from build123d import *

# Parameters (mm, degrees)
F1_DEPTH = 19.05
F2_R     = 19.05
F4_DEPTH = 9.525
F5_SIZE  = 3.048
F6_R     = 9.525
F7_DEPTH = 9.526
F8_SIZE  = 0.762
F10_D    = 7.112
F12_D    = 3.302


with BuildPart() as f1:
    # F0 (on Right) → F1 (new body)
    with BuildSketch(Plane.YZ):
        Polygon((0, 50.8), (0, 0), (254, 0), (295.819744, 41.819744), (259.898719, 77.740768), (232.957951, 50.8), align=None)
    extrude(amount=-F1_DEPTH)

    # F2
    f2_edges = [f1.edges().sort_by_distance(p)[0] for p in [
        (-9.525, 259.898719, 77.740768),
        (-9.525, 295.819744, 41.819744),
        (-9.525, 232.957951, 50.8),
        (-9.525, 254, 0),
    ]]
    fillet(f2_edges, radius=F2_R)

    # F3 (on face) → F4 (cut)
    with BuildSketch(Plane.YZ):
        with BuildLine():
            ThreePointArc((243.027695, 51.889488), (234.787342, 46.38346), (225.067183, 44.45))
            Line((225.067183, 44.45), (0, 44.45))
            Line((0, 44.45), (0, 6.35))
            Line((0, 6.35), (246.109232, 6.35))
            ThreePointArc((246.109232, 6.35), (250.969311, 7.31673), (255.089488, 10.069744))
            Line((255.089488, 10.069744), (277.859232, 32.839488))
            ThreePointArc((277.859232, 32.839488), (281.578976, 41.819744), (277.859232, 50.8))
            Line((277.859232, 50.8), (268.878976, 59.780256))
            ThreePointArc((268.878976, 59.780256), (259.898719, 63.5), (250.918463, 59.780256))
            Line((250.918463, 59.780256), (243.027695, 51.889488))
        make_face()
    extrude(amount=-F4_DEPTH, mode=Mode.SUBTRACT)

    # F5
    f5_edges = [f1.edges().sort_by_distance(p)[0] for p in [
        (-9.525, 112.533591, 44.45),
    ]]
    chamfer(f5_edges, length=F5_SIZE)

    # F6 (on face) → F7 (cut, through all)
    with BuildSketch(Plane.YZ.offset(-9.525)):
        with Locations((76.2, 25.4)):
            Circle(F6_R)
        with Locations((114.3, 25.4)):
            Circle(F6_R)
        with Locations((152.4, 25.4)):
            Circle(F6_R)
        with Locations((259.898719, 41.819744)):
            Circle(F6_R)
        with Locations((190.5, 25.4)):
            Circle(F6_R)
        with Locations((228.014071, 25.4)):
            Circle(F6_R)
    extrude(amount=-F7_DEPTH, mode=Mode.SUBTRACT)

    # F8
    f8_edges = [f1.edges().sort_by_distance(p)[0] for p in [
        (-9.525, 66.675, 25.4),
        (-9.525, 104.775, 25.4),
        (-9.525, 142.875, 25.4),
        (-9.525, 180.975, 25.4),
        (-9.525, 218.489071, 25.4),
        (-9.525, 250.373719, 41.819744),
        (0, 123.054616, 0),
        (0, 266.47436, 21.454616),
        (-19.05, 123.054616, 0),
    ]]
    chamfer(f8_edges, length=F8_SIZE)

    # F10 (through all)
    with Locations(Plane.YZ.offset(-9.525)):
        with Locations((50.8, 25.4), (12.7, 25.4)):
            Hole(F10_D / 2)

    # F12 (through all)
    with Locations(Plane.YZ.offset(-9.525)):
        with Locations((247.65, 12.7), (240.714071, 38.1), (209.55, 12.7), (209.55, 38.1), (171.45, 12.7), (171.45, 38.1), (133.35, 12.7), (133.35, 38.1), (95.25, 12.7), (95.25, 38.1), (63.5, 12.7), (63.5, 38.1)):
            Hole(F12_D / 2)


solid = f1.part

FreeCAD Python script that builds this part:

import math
import FreeCAD as App
import Part
import Sketcher
Q = App.Units.Quantity


def edges_at(feature, points):
    """Names of the edges that pass closest to the given points."""
    edges = feature.Shape.Edges
    near = lambda p: min(range(len(edges)), key=lambda i: edges[i].distToShape(Part.Vertex(*p))[0])
    return sorted({f"Edge{near(p) + 1}" for p in points})


def add_polygon(sketch, points):
    """Adds a closed chain of lines whose ends are joined by coincident constraints."""
    first, n = sketch.GeometryCount, len(points)
    for a, b in zip(points, points[1:] + points[:1]):
        sketch.addGeometry(Part.LineSegment(App.Vector(*a, 0), App.Vector(*b, 0)), False)
    for i in range(n):
        sketch.addConstraint(Sketcher.Constraint("Coincident", first + i, 2, first + (i + 1) % n, 1))

doc = App.newDocument("Part")
body = doc.addObject("PartDesign::Body", "Body")

# Sketch on YZ plane
sketch1 = body.newObject("Sketcher::SketchObject", "Sketch")
sketch1.AttachmentSupport = (doc.getObject("YZ_Plane"), [""])
sketch1.MapMode = "FlatFace"
add_polygon(sketch1, [(0, 51), (0, 0), (254, 0), (296, 42), (260, 78), (233, 51)])  # lines 0-5
sketch1.addConstraint(Sketcher.Constraint("Vertical", 0))
sketch1.addConstraint(Sketcher.Constraint("Horizontal", 1))
sketch1.addConstraint(Sketcher.Constraint("Horizontal", 5))
sketch1.addConstraint(Sketcher.Constraint("Coincident", 0, 2, -1, 1))
sketch1.addConstraint(Sketcher.Constraint("Perpendicular", 2, 3))
sketch1.addConstraint(Sketcher.Constraint("Perpendicular", 3, 4))
sketch1.addConstraint(Sketcher.Constraint("DistanceX", 1, 1, 1, 2, Q("10 in")))
sketch1.addConstraint(Sketcher.Constraint("DistanceY", 0, 2, 0, 1, Q("2 in")))
sketch1.addConstraint(Sketcher.Constraint("Distance", 3, Q("2 in")))
sketch1.addConstraint(Sketcher.Constraint("Angle", 2, Q("45 deg")))
sketch1.addConstraint(Sketcher.Constraint("Distance", 4, Q("1.5 in")))
pad1 = body.newObject("PartDesign::Pad", "Pad")
pad1.Profile = sketch1
pad1.Length = Q("0.75 in")
pad1.Reversed = True
doc.recompute()

fillet = body.newObject("PartDesign::Fillet", "Fillet")
fillet.Base = (pad1, edges_at(pad1, [
    (-9.525, 259.899, 77.741),
    (-9.525, 295.82, 41.82),
    (-9.525, 232.958, 50.8),
    (-9.525, 254, 0),
]))
fillet.Radius = Q("0.75 in")

# Sketch on YZ plane
sketch2 = body.newObject("Sketcher::SketchObject", "Sketch001")
sketch2.AttachmentSupport = (doc.getObject("YZ_Plane"), [""])
sketch2.MapMode = "FlatFace"
sketch2.addGeometry(Part.ArcOfCircle(Part.Circle(App.Vector(225, 70, 0), App.Vector(0, 0, 1), 25), math.radians(-90), math.radians(-45)), False)
sketch2.addGeometry(Part.LineSegment(App.Vector(225, 44, 0), App.Vector(0, 44, 0)), False)
sketch2.addGeometry(Part.LineSegment(App.Vector(0, 44, 0), App.Vector(0, 6, 0)), False)
sketch2.addGeometry(Part.LineSegment(App.Vector(0, 6, 0), App.Vector(246, 6, 0)), False)
sketch2.addGeometry(Part.ArcOfCircle(Part.Circle(App.Vector(246, 19, 0), App.Vector(0, 0, 1), 13), math.radians(-90), math.radians(-45)), False)
sketch2.addGeometry(Part.LineSegment(App.Vector(255, 10, 0), App.Vector(278, 33, 0)), False)
sketch2.addGeometry(Part.ArcOfCircle(Part.Circle(App.Vector(269, 42, 0), App.Vector(0, 0, 1), 13), math.radians(-45), math.radians(45)), False)
sketch2.addGeometry(Part.LineSegment(App.Vector(278, 51, 0), App.Vector(269, 60, 0)), False)
sketch2.addGeometry(Part.ArcOfCircle(Part.Circle(App.Vector(260, 51, 0), App.Vector(0, 0, 1), 13), math.radians(45), math.radians(135)), False)
sketch2.addGeometry(Part.LineSegment(App.Vector(251, 60, 0), App.Vector(243, 52, 0)), False)
sketch2.addConstraint(Sketcher.Constraint("Tangent", 0, 1, 1, 1))
sketch2.addConstraint(Sketcher.Constraint("Coincident", 1, 2, 2, 1))
sketch2.addConstraint(Sketcher.Constraint("Coincident", 2, 2, 3, 1))
sketch2.addConstraint(Sketcher.Constraint("Tangent", 3, 2, 4, 1))
sketch2.addConstraint(Sketcher.Constraint("Tangent", 4, 2, 5, 1))
sketch2.addConstraint(Sketcher.Constraint("Tangent", 5, 2, 6, 1))
sketch2.addConstraint(Sketcher.Constraint("Tangent", 6, 2, 7, 1))
sketch2.addConstraint(Sketcher.Constraint("Tangent", 7, 2, 8, 1))
sketch2.addConstraint(Sketcher.Constraint("Tangent", 8, 2, 9, 1))
sketch2.addConstraint(Sketcher.Constraint("Tangent", 9, 2, 0, 2))
sketch2.addConstraint(Sketcher.Constraint("Horizontal", 1))
sketch2.addConstraint(Sketcher.Constraint("Vertical", 2))
sketch2.addConstraint(Sketcher.Constraint("Horizontal", 3))
sketch2.addConstraint(Sketcher.Constraint("Equal", 6, 8))
sketch2.addConstraint(Sketcher.Constraint("PointOnObject", 1, 2, -2))
sketch2.addConstraint(Sketcher.Constraint("Perpendicular", 5, 7))
sketch2.addConstraint(Sketcher.Constraint("Perpendicular", 7, 9))
sketch2.addConstraint(Sketcher.Constraint("Horizontal", 8, 3, 6, 2))
sketch2.addConstraint(Sketcher.Constraint("Horizontal", 7, 2, 8, 2))
sketch2.addConstraint(Sketcher.Constraint("Radius", 0, Q("1 in")))
sketch2.addConstraint(Sketcher.Constraint("Radius", 4, Q("0.5000001 in")))
sketch2.addConstraint(Sketcher.Constraint("Radius", 6, Q("0.5 in")))
sketch2.addConstraint(Sketcher.Constraint("DistanceY", 2, 2, 2, 1, Q("1.5 in")))
sketch2.addConstraint(Sketcher.Constraint("DistanceY", -1, 1, 8, 3, Q("2 in")))
sketch2.addConstraint(Sketcher.Constraint("DistanceY", -1, 1, 0, 3, Q("2.75 in")))
sketch2.addConstraint(Sketcher.Constraint("DistanceX", 3, 1, 3, 2, Q("246.109232 mm")))
pocket1 = body.newObject("PartDesign::Pocket", "Pocket")
pocket1.Profile = sketch2
pocket1.Length = Q("0.375 in")
doc.recompute()

chamfer = body.newObject("PartDesign::Chamfer", "Chamfer")
chamfer.Base = (pocket1, edges_at(pocket1, [(-9.525, 112.534, 44.45)]))
chamfer.Size = Q("0.12 in")

# Sketch on YZ plane
sketch3 = body.newObject("Sketcher::SketchObject", "Sketch002")
sketch3.AttachmentSupport = (doc.getObject("YZ_Plane"), [""])
sketch3.MapMode = "FlatFace"
sketch3.AttachmentOffset = App.Placement(App.Vector(0, 0, -0.375 * 25.4), App.Rotation())
sketch3.addGeometry(Part.Circle(App.Vector(76, 25, 0), App.Vector(0, 0, 1), 10), False)
sketch3.addGeometry(Part.Circle(App.Vector(114, 25, 0), App.Vector(0, 0, 1), 10), False)
sketch3.addGeometry(Part.Circle(App.Vector(152, 25, 0), App.Vector(0, 0, 1), 10), False)
sketch3.addGeometry(Part.Circle(App.Vector(260, 42, 0), App.Vector(0, 0, 1), 10), False)
sketch3.addGeometry(Part.Circle(App.Vector(190, 25, 0), App.Vector(0, 0, 1), 10), False)
sketch3.addGeometry(Part.Circle(App.Vector(228, 25, 0), App.Vector(0, 0, 1), 10), False)
sketch3.addConstraint(Sketcher.Constraint("Equal", 0, 1))
sketch3.addConstraint(Sketcher.Constraint("Equal", 1, 2))
sketch3.addConstraint(Sketcher.Constraint("Equal", 2, 3))
sketch3.addConstraint(Sketcher.Constraint("Equal", 3, 4))
sketch3.addConstraint(Sketcher.Constraint("Equal", 4, 5))
sketch3.addConstraint(Sketcher.Constraint("Horizontal", 0, 3, 1, 3))
sketch3.addConstraint(Sketcher.Constraint("Horizontal", 1, 3, 2, 3))
sketch3.addConstraint(Sketcher.Constraint("Horizontal", 2, 3, 4, 3))
sketch3.addConstraint(Sketcher.Constraint("Horizontal", 4, 3, 5, 3))
sketch3.addConstraint(Sketcher.Constraint("Diameter", 0, Q("0.75 in")))
sketch3.addConstraint(Sketcher.Constraint("DistanceX", -1, 1, 0, 3, Q("3 in")))
sketch3.addConstraint(Sketcher.Constraint("DistanceY", -1, 1, 0, 3, Q("1 in")))
sketch3.addConstraint(Sketcher.Constraint("DistanceX", -1, 1, 2, 3, Q("6 in")))
sketch3.addConstraint(Sketcher.Constraint("DistanceX", 1, 3, 4, 3, Q("3 in")))
sketch3.addConstraint(Sketcher.Constraint("DistanceX", -1, 1, 1, 3, Q("4.5 in")))
sketch3.addConstraint(Sketcher.Constraint("DistanceX", -1, 1, 3, 3, Q("259.898719 mm")))
sketch3.addConstraint(Sketcher.Constraint("DistanceX", -1, 1, 5, 3, Q("228.014071 mm")))
sketch3.addConstraint(Sketcher.Constraint("DistanceY", -1, 1, 3, 3, Q("41.819744 mm")))
pocket2 = body.newObject("PartDesign::Pocket", "Pocket001")
pocket2.Profile = sketch3
pocket2.Type = "ThroughAll"
doc.recompute()

chamfer2 = body.newObject("PartDesign::Chamfer", "Chamfer001")
chamfer2.Base = (pocket2, edges_at(pocket2, [
    (-9.525, 66.675, 25.4),
    (-9.525, 104.775, 25.4),
    (-9.525, 142.875, 25.4),
    (-9.525, 180.975, 25.4),
    (-9.525, 218.489, 25.4),
    (-9.525, 250.374, 41.82),
    (0, 123.055, 0),
    (0, 266.474, 21.455),
    (-19.05, 123.055, 0),
]))
chamfer2.Size = Q("0.03 in")

# Sketch on YZ plane
sketch4 = body.newObject("Sketcher::SketchObject", "Sketch003")
sketch4.AttachmentSupport = (doc.getObject("YZ_Plane"), [""])
sketch4.MapMode = "FlatFace"
sketch4.AttachmentOffset = App.Placement(App.Vector(0, 0, -0.375 * 25.4), App.Rotation())
sketch4.addGeometry(Part.Circle(App.Vector(50.8, 25.4, 0), App.Vector(0, 0, 1), 3.6), False)
sketch4.addGeometry(Part.Circle(App.Vector(12.7, 25.4, 0), App.Vector(0, 0, 1), 3.6), False)
sketch4.addConstraint(Sketcher.Constraint("Equal", 0, 1))
sketch4.addConstraint(Sketcher.Constraint("Horizontal", 0, 3, 1, 3))
sketch4.addConstraint(Sketcher.Constraint("Diameter", 0, Q("0.28 in")))
sketch4.addConstraint(Sketcher.Constraint("DistanceX", -1, 1, 0, 3, Q("2 in")))
sketch4.addConstraint(Sketcher.Constraint("DistanceY", -1, 1, 0, 3, Q("1 in")))
sketch4.addConstraint(Sketcher.Constraint("DistanceX", -1, 1, 1, 3, Q("0.5 in")))
doc.recompute()
hole = body.newObject("PartDesign::Hole", "Hole")
hole.Profile = sketch4
hole.ThreadType = "None"
hole.Diameter = Q("0.28 in")
hole.DepthType = "ThroughAll"

# Sketch on YZ plane
sketch5 = body.newObject("Sketcher::SketchObject", "Sketch004")
sketch5.AttachmentSupport = (doc.getObject("YZ_Plane"), [""])
sketch5.MapMode = "FlatFace"
sketch5.AttachmentOffset = App.Placement(App.Vector(0, 0, -0.375 * 25.4), App.Rotation())
sketch5.addGeometry(Part.Circle(App.Vector(247.7, 12.7, 0), App.Vector(0, 0, 1), 1.7), False)
sketch5.addGeometry(Part.Circle(App.Vector(240.7, 38.1, 0), App.Vector(0, 0, 1), 1.7), False)
sketch5.addGeometry(Part.Circle(App.Vector(209.6, 12.7, 0), App.Vector(0, 0, 1), 1.7), False)
sketch5.addGeometry(Part.Circle(App.Vector(209.6, 38.1, 0), App.Vector(0, 0, 1), 1.7), False)
sketch5.addGeometry(Part.Circle(App.Vector(171.4, 12.7, 0), App.Vector(0, 0, 1), 1.7), False)
sketch5.addGeometry(Part.Circle(App.Vector(171.4, 38.1, 0), App.Vector(0, 0, 1), 1.7), False)
sketch5.addGeometry(Part.Circle(App.Vector(133.3, 12.7, 0), App.Vector(0, 0, 1), 1.7), False)
sketch5.addGeometry(Part.Circle(App.Vector(133.3, 38.1, 0), App.Vector(0, 0, 1), 1.7), False)
sketch5.addGeometry(Part.Circle(App.Vector(95.2, 12.7, 0), App.Vector(0, 0, 1), 1.7), False)
sketch5.addGeometry(Part.Circle(App.Vector(95.2, 38.1, 0), App.Vector(0, 0, 1), 1.7), False)
sketch5.addGeometry(Part.Circle(App.Vector(63.5, 12.7, 0), App.Vector(0, 0, 1), 1.7), False)
sketch5.addGeometry(Part.Circle(App.Vector(63.5, 38.1, 0), App.Vector(0, 0, 1), 1.7), False)
sketch5.addConstraint(Sketcher.Constraint("Equal", 0, 1))
sketch5.addConstraint(Sketcher.Constraint("Equal", 1, 2))
sketch5.addConstraint(Sketcher.Constraint("Equal", 2, 3))
sketch5.addConstraint(Sketcher.Constraint("Equal", 3, 4))
sketch5.addConstraint(Sketcher.Constraint("Equal", 4, 5))
sketch5.addConstraint(Sketcher.Constraint("Equal", 5, 6))
sketch5.addConstraint(Sketcher.Constraint("Equal", 6, 7))
sketch5.addConstraint(Sketcher.Constraint("Equal", 7, 8))
sketch5.addConstraint(Sketcher.Constraint("Equal", 8, 9))
sketch5.addConstraint(Sketcher.Constraint("Equal", 9, 10))
sketch5.addConstraint(Sketcher.Constraint("Equal", 10, 11))
sketch5.addConstraint(Sketcher.Constraint("Horizontal", 0, 3, 2, 3))
sketch5.addConstraint(Sketcher.Constraint("Horizontal", 1, 3, 3, 3))
sketch5.addConstraint(Sketcher.Constraint("Horizontal", 2, 3, 4, 3))
sketch5.addConstraint(Sketcher.Constraint("Horizontal", 3, 3, 5, 3))
sketch5.addConstraint(Sketcher.Constraint("Horizontal", 4, 3, 6, 3))
sketch5.addConstraint(Sketcher.Constraint("Horizontal", 5, 3, 7, 3))
sketch5.addConstraint(Sketcher.Constraint("Horizontal", 6, 3, 8, 3))
sketch5.addConstraint(Sketcher.Constraint("Horizontal", 7, 3, 9, 3))
sketch5.addConstraint(Sketcher.Constraint("Horizontal", 8, 3, 10, 3))
sketch5.addConstraint(Sketcher.Constraint("Horizontal", 9, 3, 11, 3))
sketch5.addConstraint(Sketcher.Constraint("Vertical", 2, 3, 3, 3))
sketch5.addConstraint(Sketcher.Constraint("Vertical", 4, 3, 5, 3))
sketch5.addConstraint(Sketcher.Constraint("Vertical", 6, 3, 7, 3))
sketch5.addConstraint(Sketcher.Constraint("Vertical", 8, 3, 9, 3))
sketch5.addConstraint(Sketcher.Constraint("Vertical", 10, 3, 11, 3))
sketch5.addConstraint(Sketcher.Constraint("Diameter", 0, Q("0.13 in")))
sketch5.addConstraint(Sketcher.Constraint("DistanceY", 0, 3, 1, 3, Q("1 in")))
sketch5.addConstraint(Sketcher.Constraint("DistanceX", 4, 3, 0, 3, Q("3 in")))
sketch5.addConstraint(Sketcher.Constraint("DistanceX", 6, 3, 2, 3, Q("3 in")))
sketch5.addConstraint(Sketcher.Constraint("DistanceX", 8, 3, 4, 3, Q("3 in")))
sketch5.addConstraint(Sketcher.Constraint("DistanceY", -1, 1, 0, 3, Q("0.5 in")))
sketch5.addConstraint(Sketcher.Constraint("DistanceX", -1, 1, 10, 3, Q("2.5 in")))
sketch5.addConstraint(Sketcher.Constraint("DistanceX", 2, 3, 0, 3, Q("1.5 in")))
sketch5.addConstraint(Sketcher.Constraint("DistanceX", -1, 1, 0, 3, Q("9.75 in")))
sketch5.addConstraint(Sketcher.Constraint("DistanceX", -1, 1, 1, 3, Q("240.714071 mm")))
doc.recompute()
hole2 = body.newObject("PartDesign::Hole", "Hole001")
hole2.Profile = sketch5
hole2.ThreadType = "None"
hole2.Diameter = Q("0.13 in")
hole2.DepthType = "ThroughAll"

doc.recompute()
